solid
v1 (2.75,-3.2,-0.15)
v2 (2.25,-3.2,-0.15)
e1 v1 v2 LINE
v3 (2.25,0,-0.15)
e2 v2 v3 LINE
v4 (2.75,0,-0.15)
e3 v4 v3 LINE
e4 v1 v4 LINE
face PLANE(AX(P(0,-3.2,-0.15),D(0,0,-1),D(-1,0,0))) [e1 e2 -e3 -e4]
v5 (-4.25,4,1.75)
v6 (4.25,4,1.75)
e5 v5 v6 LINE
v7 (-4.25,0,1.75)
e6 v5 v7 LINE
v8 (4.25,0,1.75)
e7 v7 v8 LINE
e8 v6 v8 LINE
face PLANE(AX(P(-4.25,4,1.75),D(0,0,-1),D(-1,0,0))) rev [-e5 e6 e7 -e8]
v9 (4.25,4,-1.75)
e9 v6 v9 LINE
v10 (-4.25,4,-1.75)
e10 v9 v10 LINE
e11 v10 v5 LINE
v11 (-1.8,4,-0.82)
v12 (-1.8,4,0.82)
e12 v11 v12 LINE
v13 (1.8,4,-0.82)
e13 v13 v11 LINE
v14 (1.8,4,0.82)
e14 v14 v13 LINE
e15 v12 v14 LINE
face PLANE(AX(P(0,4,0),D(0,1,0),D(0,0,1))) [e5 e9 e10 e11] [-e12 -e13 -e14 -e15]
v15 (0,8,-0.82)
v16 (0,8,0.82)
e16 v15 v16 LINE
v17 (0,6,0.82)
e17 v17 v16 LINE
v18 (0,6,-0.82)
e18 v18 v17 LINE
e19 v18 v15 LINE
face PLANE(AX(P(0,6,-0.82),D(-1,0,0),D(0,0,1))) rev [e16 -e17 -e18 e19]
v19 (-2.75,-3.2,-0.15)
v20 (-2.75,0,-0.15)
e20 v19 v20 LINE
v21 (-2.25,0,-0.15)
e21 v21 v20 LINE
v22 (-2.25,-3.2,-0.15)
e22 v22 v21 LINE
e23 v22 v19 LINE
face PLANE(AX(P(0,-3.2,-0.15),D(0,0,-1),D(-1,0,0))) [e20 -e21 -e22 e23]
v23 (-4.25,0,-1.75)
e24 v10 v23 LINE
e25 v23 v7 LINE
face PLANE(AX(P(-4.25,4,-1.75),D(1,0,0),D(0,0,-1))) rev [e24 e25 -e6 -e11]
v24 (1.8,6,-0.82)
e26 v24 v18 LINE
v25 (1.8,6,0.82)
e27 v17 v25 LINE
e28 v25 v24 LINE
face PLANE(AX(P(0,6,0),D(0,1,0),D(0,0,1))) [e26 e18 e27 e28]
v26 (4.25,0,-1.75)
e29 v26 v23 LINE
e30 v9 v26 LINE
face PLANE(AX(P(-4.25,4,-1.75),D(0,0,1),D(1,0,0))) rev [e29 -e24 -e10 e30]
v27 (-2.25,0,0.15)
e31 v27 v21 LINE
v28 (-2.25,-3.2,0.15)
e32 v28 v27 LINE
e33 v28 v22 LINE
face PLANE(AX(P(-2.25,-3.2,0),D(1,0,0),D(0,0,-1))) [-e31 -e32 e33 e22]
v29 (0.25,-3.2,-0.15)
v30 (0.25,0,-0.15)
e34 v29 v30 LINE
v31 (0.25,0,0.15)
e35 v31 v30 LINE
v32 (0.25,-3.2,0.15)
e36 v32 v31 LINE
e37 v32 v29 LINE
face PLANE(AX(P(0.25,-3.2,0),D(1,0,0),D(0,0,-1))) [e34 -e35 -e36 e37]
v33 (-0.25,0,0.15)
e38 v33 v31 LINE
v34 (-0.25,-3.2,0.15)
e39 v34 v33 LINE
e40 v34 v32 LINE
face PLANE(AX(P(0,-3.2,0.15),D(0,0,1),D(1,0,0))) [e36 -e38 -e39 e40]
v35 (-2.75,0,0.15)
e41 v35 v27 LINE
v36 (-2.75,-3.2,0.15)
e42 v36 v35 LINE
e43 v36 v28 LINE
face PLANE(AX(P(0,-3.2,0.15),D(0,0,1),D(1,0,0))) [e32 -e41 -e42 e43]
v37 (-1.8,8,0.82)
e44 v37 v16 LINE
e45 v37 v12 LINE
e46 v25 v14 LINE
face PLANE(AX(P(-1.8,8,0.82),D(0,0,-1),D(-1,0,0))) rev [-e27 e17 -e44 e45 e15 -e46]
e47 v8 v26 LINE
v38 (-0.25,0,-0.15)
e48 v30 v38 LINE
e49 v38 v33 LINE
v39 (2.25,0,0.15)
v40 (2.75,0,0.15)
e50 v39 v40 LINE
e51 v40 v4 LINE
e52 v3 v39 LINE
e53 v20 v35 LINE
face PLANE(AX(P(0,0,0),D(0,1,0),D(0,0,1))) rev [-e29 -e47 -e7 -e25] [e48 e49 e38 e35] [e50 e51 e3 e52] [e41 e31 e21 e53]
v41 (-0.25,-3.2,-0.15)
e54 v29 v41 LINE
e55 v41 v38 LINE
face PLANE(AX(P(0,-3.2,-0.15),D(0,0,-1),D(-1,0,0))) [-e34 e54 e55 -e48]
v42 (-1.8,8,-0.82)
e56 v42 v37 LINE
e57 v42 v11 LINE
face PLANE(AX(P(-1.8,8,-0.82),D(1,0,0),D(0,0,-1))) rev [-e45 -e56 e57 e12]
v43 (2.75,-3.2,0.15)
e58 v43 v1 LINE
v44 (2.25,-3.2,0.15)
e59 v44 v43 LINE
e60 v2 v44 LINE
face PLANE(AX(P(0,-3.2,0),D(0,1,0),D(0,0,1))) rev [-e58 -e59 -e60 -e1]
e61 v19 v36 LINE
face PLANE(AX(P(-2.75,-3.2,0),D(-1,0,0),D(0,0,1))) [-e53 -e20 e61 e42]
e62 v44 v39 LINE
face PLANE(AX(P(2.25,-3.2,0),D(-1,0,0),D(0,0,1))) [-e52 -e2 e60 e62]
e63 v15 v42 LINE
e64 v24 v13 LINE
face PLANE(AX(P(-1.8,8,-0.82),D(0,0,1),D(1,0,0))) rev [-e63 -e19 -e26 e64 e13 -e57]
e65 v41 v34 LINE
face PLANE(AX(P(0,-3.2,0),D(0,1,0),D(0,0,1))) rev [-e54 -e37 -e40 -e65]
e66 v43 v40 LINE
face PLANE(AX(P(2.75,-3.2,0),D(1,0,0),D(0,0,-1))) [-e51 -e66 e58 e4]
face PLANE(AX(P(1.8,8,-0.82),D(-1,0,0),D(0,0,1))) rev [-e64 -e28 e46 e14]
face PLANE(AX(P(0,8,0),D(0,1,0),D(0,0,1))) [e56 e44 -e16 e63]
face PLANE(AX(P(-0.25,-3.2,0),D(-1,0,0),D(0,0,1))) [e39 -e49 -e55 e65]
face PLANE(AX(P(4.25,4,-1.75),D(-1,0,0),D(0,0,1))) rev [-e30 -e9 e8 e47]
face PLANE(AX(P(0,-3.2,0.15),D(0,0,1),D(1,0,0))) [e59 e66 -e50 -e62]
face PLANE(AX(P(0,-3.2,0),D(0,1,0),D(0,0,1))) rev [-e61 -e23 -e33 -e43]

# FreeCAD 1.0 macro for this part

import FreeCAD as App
import Part
import Sketcher
from FreeCAD import Vector
Q = App.Units.Quantity

doc = App.newDocument("Part")
body = doc.addObject("PartDesign::Body", "Body")

# Sketch on XZ plane
sketch1 = body.newObject("Sketcher::SketchObject", "Sketch")
sketch1.AttachmentSupport = (doc.getObject("XZ_Plane"), [""])
sketch1.MapMode = "FlatFace"
sketch1.addGeometry(Part.LineSegment(Vector(-4.2, -1.8, 0), Vector(-4.2, 1.8, 0)), False)
sketch1.addGeometry(Part.LineSegment(Vector(-4.2, 1.8, 0), Vector(4.2, 1.8, 0)), False)
sketch1.addGeometry(Part.LineSegment(Vector(4.2, 1.8, 0), Vector(4.2, -1.8, 0)), False)
sketch1.addGeometry(Part.LineSegment(Vector(4.2, -1.8, 0), Vector(-4.2, -1.8, 0)), False)
sketch1.addConstraint(Sketcher.Constraint("Coincident", 0, 2, 1, 1))
sketch1.addConstraint(Sketcher.Constraint("Coincident", 1, 2, 2, 1))
sketch1.addConstraint(Sketcher.Constraint("Coincident", 2, 2, 3, 1))
sketch1.addConstraint(Sketcher.Constraint("Coincident", 3, 2, 0, 1))
sketch1.addConstraint(Sketcher.Constraint("Vertical", 0))
sketch1.addConstraint(Sketcher.Constraint("Horizontal", 1))
sketch1.addConstraint(Sketcher.Constraint("Vertical", 2))
sketch1.addConstraint(Sketcher.Constraint("Horizontal", 3))
sketch1.addConstraint(Sketcher.Constraint("Symmetric", 0, 2, 2, 2, -1, 1))
sketch1.addConstraint(Sketcher.Constraint("DistanceX", 1, 1, 1, 2, Q("8.5 mm")))
sketch1.addConstraint(Sketcher.Constraint("DistanceY", 0, 1, 0, 2, Q("3.5 mm")))
pad1 = body.newObject("PartDesign::Pad", "Pad")
pad1.Profile = sketch1
pad1.Length = 4
pad1.Reversed = True

# Sketch on XZ plane
sketch2 = body.newObject("Sketcher::SketchObject", "Sketch001")
sketch2.AttachmentSupport = (doc.getObject("XZ_Plane"), [""])
sketch2.MapMode = "FlatFace"
sketch2.AttachmentOffset = App.Placement(Vector(0, 0, -4), App.Rotation())
sketch2.addGeometry(Part.LineSegment(Vector(-1.8, -0.8, 0), Vector(-1.8, 0.8, 0)), False)
sketch2.addGeometry(Part.LineSegment(Vector(-1.8, 0.8, 0), Vector(1.8, 0.8, 0)), False)
sketch2.addGeometry(Part.LineSegment(Vector(1.8, 0.8, 0), Vector(1.8, -0.8, 0)), False)
sketch2.addGeometry(Part.LineSegment(Vector(1.8, -0.8, 0), Vector(-1.8, -0.8, 0)), False)
sketch2.addConstraint(Sketcher.Constraint("Coincident", 0, 2, 1, 1))
sketch2.addConstraint(Sketcher.Constraint("Coincident", 1, 2, 2, 1))
sketch2.addConstraint(Sketcher.Constraint("Coincident", 2, 2, 3, 1))
sketch2.addConstraint(Sketcher.Constraint("Coincident", 3, 2, 0, 1))
sketch2.addConstraint(Sketcher.Constraint("Vertical", 0))
sketch2.addConstraint(Sketcher.Constraint("Horizontal", 1))
sketch2.addConstraint(Sketcher.Constraint("Vertical", 2))
sketch2.addConstraint(Sketcher.Constraint("Horizontal", 3))
sketch2.addConstraint(Sketcher.Constraint("Symmetric", 0, 2, 2, 2, -1, 1))
sketch2.addConstraint(Sketcher.Constraint("DistanceX", 1, 1, 1, 2, Q("3.6 mm")))
sketch2.addConstraint(Sketcher.Constraint("DistanceY", 0, 1, 0, 2, Q("1.64 mm")))
pad2 = body.newObject("PartDesign::Pad", "Pad001")
pad2.Profile = sketch2
pad2.Length = 4
pad2.Reversed = True

# Sketch on XZ plane
sketch3 = body.newObject("Sketcher::SketchObject", "Sketch002")
sketch3.AttachmentSupport = (doc.getObject("XZ_Plane"), [""])
sketch3.MapMode = "FlatFace"
sketch3.AttachmentOffset = App.Placement(Vector(0, 0, -8), App.Rotation())
sketch3.addGeometry(Part.LineSegment(Vector(0, -0.8, 0), Vector(0, 0.8, 0)), False)
sketch3.addGeometry(Part.LineSegment(Vector(0, 0.8, 0), Vector(1.8, 0.8, 0)), False)
sketch3.addGeometry(Part.LineSegment(Vector(1.8, 0.8, 0), Vector(1.8, -0.8, 0)), False)
sketch3.addGeometry(Part.LineSegment(Vector(1.8, -0.8, 0), Vector(0, -0.8, 0)), False)
sketch3.addConstraint(Sketcher.Constraint("Coincident", 0, 2, 1, 1))
sketch3.addConstraint(Sketcher.Constraint("Coincident", 1, 2, 2, 1))
sketch3.addConstraint(Sketcher.Constraint("Coincident", 2, 2, 3, 1))
sketch3.addConstraint(Sketcher.Constraint("Coincident", 3, 2, 0, 1))
sketch3.addConstraint(Sketcher.Constraint("Vertical", 0))
sketch3.addConstraint(Sketcher.Constraint("Horizontal", 1))
sketch3.addConstraint(Sketcher.Constraint("Vertical", 2))
sketch3.addConstraint(Sketcher.Constraint("Horizontal", 3))
sketch3.addConstraint(Sketcher.Constraint("Symmetric", 0, 2, 3, 2, -1, 1))
sketch3.addConstraint(Sketcher.Constraint("DistanceX", 1, 1, 1, 2, Q("1.8 mm")))
sketch3.addConstraint(Sketcher.Constraint("DistanceY", 0, 1, 0, 2, Q("1.64 mm")))
pocket1 = body.newObject("PartDesign::Pocket", "Pocket")
pocket1.Profile = sketch3
pocket1.Length = 2
pocket1.Reversed = True

# Sketch on XZ plane
sketch4 = body.newObject("Sketcher::SketchObject", "Sketch003")
sketch4.AttachmentSupport = (doc.getObject("XZ_Plane"), [""])
sketch4.MapMode = "FlatFace"
sketch4.AttachmentOffset = App.Placement(Vector(0, 0, -4), App.Rotation())
sketch4.addGeometry(Part.LineSegment(Vector(2.25, 0.15, 0), Vector(2.25, -0.15, 0)), False)
sketch4.addGeometry(Part.LineSegment(Vector(2.25, -0.15, 0), Vector(2.75, -0.15, 0)), False)
sketch4.addGeometry(Part.LineSegment(Vector(2.75, -0.15, 0), Vector(2.75, 0.15, 0)), False)
sketch4.addGeometry(Part.LineSegment(Vector(2.75, 0.15, 0), Vector(2.25, 0.15, 0)), False)
sketch4.addGeometry(Part.LineSegment(Vector(-0.25, 0.15, 0), Vector(-0.25, -0.15, 0)), False)
sketch4.addGeometry(Part.LineSegment(Vector(-0.25, -0.15, 0), Vector(0.25, -0.15, 0)), False)
sketch4.addGeometry(Part.LineSegment(Vector(0.25, -0.15, 0), Vector(0.25, 0.15, 0)), False)
sketch4.addGeometry(Part.LineSegment(Vector(0.25, 0.15, 0), Vector(-0.25, 0.15, 0)), False)
sketch4.addGeometry(Part.LineSegment(Vector(-2.75, 0.15, 0), Vector(-2.75, -0.15, 0)), False)
sketch4.addGeometry(Part.LineSegment(Vector(-2.75, -0.15, 0), Vector(-2.25, -0.15, 0)), False)
sketch4.addGeometry(Part.LineSegment(Vector(-2.25, -0.15, 0), Vector(-2.25, 0.15, 0)), False)
sketch4.addGeometry(Part.LineSegment(Vector(-2.25, 0.15, 0), Vector(-2.75, 0.15, 0)), False)
sketch4.addConstraint(Sketcher.Constraint("Coincident", 0, 2, 1, 1))
sketch4.addConstraint(Sketcher.Constraint("Coincident", 1, 2, 2, 1))
sketch4.addConstraint(Sketcher.Constraint("Coincident", 2, 2, 3, 1))
sketch4.addConstraint(Sketcher.Constraint("Coincident", 3, 2, 0, 1))
sketch4.addConstraint(Sketcher.Constraint("Coincident", 4, 2, 5, 1))
sketch4.addConstraint(Sketcher.Constraint("Coincident", 5, 2, 6, 1))
sketch4.addConstraint(Sketcher.Constraint("Coincident", 6, 2, 7, 1))
sketch4.addConstraint(Sketcher.Constraint("Coincident", 7, 2, 4, 1))
sketch4.addConstraint(Sketcher.Constraint("Coincident", 8, 2, 9, 1))
sketch4.addConstraint(Sketcher.Constraint("Coincident", 9, 2, 10, 1))
sketch4.addConstraint(Sketcher.Constraint("Coincident", 10, 2, 11, 1))
sketch4.addConstraint(Sketcher.Constraint("Coincident", 11, 2, 8, 1))
sketch4.addConstraint(Sketcher.Constraint("Vertical", 0))
sketch4.addConstraint(Sketcher.Constraint("Horizontal", 1))
sketch4.addConstraint(Sketcher.Constraint("Vertical", 2))
sketch4.addConstraint(Sketcher.Constraint("Horizontal", 3))
sketch4.addConstraint(Sketcher.Constraint("Vertical", 4))
sketch4.addConstraint(Sketcher.Constraint("Horizontal", 5))
sketch4.addConstraint(Sketcher.Constraint("Vertical", 6))
sketch4.addConstraint(Sketcher.Constraint("Horizontal", 7))
sketch4.addConstraint(Sketcher.Constraint("Vertical", 8))
sketch4.addConstraint(Sketcher.Constraint("Horizontal", 9))
sketch4.addConstraint(Sketcher.Constraint("Vertical", 10))
sketch4.addConstraint(Sketcher.Constraint("Horizontal", 11))
sketch4.addConstraint(Sketcher.Constraint("Symmetric", 4, 2, 6, 2, -1, 1))
sketch4.addConstraint(Sketcher.Constraint("Symmetric", 2, 2, 8, 2, -1, 1))
sketch4.addConstraint(Sketcher.Constraint("Symmetric", 0, 2, 10, 2, -1, 1))
sketch4.addConstraint(Sketcher.Constraint("Horizontal", 1, 2, 4, 2))
sketch4.addConstraint(Sketcher.Constraint("Horizontal", 3, 2, 6, 2))
sketch4.addConstraint(Sketcher.Constraint("Equal", 3, 5))
sketch4.addConstraint(Sketcher.Constraint("DistanceX", 1, 1, 1, 2, Q("0.5 mm")))
sketch4.addConstraint(Sketcher.Constraint("DistanceY", 0, 2, 0, 1, Q("0.3 mm")))
sketch4.addConstraint(Sketcher.Constraint("DistanceX", 4, 2, 1, 2, Q("3 mm")))
pad3 = body.newObject("PartDesign::Pad", "Pad002")
pad3.Profile = sketch4
pad3.Length = 7.2

doc.recompute()
